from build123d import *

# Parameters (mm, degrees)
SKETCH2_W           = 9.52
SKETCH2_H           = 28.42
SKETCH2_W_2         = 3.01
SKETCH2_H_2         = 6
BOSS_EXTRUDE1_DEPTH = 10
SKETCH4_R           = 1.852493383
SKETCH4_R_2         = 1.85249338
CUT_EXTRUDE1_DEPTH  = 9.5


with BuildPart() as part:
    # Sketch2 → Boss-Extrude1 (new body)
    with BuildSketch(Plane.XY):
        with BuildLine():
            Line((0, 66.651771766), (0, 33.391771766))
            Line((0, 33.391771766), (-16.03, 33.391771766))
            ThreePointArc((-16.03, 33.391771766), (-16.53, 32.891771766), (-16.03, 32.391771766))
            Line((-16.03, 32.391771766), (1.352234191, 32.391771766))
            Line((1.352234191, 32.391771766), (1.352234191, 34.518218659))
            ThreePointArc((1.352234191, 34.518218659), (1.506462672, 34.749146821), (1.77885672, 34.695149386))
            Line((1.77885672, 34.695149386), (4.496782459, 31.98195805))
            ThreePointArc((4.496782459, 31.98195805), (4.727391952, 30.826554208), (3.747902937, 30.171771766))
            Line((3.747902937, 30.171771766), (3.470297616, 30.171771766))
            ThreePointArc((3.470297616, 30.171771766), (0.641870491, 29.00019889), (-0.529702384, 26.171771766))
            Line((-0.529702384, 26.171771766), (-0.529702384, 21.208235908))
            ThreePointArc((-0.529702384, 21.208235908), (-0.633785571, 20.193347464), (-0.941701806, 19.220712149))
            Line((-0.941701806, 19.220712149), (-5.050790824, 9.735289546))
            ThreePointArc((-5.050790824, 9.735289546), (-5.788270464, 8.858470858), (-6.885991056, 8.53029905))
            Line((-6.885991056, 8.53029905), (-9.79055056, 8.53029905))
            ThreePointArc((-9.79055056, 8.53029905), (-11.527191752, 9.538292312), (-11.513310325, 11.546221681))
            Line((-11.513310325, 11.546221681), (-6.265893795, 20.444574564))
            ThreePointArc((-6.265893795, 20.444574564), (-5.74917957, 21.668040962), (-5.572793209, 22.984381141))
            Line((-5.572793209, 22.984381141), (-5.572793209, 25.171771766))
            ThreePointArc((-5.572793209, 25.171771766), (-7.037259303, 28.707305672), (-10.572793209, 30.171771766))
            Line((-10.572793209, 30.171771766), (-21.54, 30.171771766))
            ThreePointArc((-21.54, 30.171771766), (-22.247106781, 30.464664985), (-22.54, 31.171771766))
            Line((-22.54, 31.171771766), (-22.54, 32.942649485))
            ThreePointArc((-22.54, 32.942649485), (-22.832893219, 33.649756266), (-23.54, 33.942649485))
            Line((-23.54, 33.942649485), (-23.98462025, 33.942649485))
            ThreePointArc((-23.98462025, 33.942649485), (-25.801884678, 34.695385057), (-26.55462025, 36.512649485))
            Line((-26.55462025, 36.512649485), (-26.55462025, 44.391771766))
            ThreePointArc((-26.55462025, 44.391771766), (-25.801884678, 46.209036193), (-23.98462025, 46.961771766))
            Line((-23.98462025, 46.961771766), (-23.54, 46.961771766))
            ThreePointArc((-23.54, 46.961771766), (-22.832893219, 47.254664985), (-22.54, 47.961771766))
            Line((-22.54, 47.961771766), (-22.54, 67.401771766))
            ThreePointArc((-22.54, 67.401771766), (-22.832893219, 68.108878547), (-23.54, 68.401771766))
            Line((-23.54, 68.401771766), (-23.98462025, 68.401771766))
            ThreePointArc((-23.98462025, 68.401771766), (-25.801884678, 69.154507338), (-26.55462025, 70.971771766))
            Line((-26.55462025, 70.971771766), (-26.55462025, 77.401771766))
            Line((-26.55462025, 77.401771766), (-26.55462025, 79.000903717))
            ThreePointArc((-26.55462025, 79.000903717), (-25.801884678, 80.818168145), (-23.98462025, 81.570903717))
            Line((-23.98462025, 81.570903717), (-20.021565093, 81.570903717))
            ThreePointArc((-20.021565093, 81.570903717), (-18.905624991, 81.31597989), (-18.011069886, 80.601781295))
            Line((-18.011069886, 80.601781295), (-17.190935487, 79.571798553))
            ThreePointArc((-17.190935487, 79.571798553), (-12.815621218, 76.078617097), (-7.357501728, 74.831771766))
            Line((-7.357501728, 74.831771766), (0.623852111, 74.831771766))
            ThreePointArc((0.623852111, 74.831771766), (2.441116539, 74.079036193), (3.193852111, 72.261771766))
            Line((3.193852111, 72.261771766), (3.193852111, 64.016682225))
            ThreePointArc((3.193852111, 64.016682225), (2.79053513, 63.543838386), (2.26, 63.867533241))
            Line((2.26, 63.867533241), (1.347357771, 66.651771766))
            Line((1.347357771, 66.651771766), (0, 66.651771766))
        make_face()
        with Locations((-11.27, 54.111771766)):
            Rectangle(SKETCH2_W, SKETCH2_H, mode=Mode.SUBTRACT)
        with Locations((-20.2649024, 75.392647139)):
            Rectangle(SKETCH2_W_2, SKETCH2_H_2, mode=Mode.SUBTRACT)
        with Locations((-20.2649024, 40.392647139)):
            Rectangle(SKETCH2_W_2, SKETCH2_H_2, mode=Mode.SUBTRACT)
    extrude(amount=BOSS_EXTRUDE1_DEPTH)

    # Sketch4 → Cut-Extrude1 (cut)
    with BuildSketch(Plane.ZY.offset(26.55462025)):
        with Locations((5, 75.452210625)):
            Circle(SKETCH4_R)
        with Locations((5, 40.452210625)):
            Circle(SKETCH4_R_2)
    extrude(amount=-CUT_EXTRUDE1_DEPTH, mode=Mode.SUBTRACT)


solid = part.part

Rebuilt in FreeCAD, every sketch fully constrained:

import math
import FreeCAD as App
import Part
import Sketcher
from FreeCAD import Vector
Q = App.Units.Quantity


def add_polygon(sketch, points):
    """Adds a closed chain of lines whose ends are joined by coincident constraints."""
    first, n = sketch.GeometryCount, len(points)
    for a, b in zip(points, points[1:] + points[:1]):
        sketch.addGeometry(Part.LineSegment(App.Vector(*a, 0), App.Vector(*b, 0)), False)
    for i in range(n):
        sketch.addConstraint(Sketcher.Constraint("Coincident", first + i, 2, first + (i + 1) % n, 1))

doc = App.newDocument("Part")
body = doc.addObject("PartDesign::Body", "Body")

# Sketch on XY plane
sketch1 = body.newObject("Sketcher::SketchObject", "Sketch")
sketch1.AttachmentSupport = (doc.getObject("XY_Plane"), [""])
sketch1.MapMode = "FlatFace"
sketch1.addGeometry(Part.LineSegment(Vector(0, 33.391772, 0), Vector(0, 66.651772, 0)), False)  # 0
sketch1.addGeometry(Part.LineSegment(Vector(0, 66.651772, 0), Vector(1.347358, 66.651772, 0)), False)  # 1
sketch1.addGeometry(Part.LineSegment(Vector(1.347358, 66.651772, 0), Vector(2.26, 63.867533, 0)), False)  # 2
sketch1.addGeometry(Part.ArcOfCircle(Part.Circle(Vector(2.715015, 64.016682, 0), Vector(0, 0, 1), 0.478837), math.radians(-161.851435), math.radians(0)), False)  # 3
sketch1.addGeometry(Part.LineSegment(Vector(3.193852, 64.016682, 0), Vector(3.193852, 72.261772, 0)), False)  # 4
sketch1.addGeometry(Part.ArcOfCircle(Part.Circle(Vector(0.623852, 72.261772, 0), Vector(0, 0, 1), 2.57), math.radians(0), math.radians(90)), False)  # 5
sketch1.addGeometry(Part.LineSegment(Vector(0.623852, 74.831772, 0), Vector(-7.357502, 74.831772, 0)), False)  # 6
sketch1.addGeometry(Part.ArcOfCircle(Part.Circle(Vector(-7.357502, 87.401772, 0), Vector(0, 0, 1), 12.57), math.radians(-141.471081), math.radians(-90)), False)  # 7
sketch1.addGeometry(Part.LineSegment(Vector(-17.190935, 79.571799, 0), Vector(-18.01107, 80.601781, 0)), False)  # 8
sketch1.addGeometry(Part.ArcOfCircle(Part.Circle(Vector(-20.021565, 79.000904, 0), Vector(0, 0, 1), 2.57), math.radians(38.528919), math.radians(90)), False)  # 9
sketch1.addGeometry(Part.LineSegment(Vector(-20.021565, 81.570904, 0), Vector(-23.98462, 81.570904, 0)), False)  # 10
sketch1.addGeometry(Part.ArcOfCircle(Part.Circle(Vector(-23.98462, 79.000904, 0), Vector(0, 0, 1), 2.57), math.radians(90), math.radians(180)), False)  # 11
sketch1.addGeometry(Part.LineSegment(Vector(-26.55462, 79.000904, 0), Vector(-26.55462, 70.971772, 0)), False)  # 12
sketch1.addGeometry(Part.ArcOfCircle(Part.Circle(Vector(-23.98462, 70.971772, 0), Vector(0, 0, 1), 2.57), math.radians(180), math.radians(270)), False)  # 13
sketch1.addGeometry(Part.LineSegment(Vector(-23.98462, 68.401772, 0), Vector(-23.54, 68.401772, 0)), False)  # 14
sketch1.addGeometry(Part.ArcOfCircle(Part.Circle(Vector(-23.54, 67.401772, 0), Vector(0, 0, 1), 1), math.radians(0), math.radians(90)), False)  # 15
sketch1.addGeometry(Part.LineSegment(Vector(-22.54, 67.401772, 0), Vector(-22.54, 47.961772, 0)), False)  # 16
sketch1.addGeometry(Part.ArcOfCircle(Part.Circle(Vector(-23.54, 47.961772, 0), Vector(0, 0, 1), 1), math.radians(-90), math.radians(0)), False)  # 17
sketch1.addGeometry(Part.LineSegment(Vector(-23.54, 46.961772, 0), Vector(-23.98462, 46.961772, 0)), False)  # 18
sketch1.addGeometry(Part.ArcOfCircle(Part.Circle(Vector(-23.98462, 44.391772, 0), Vector(0, 0, 1), 2.57), math.radians(90), math.radians(180)), False)  # 19
sketch1.addGeometry(Part.LineSegment(Vector(-26.55462, 44.391772, 0), Vector(-26.55462, 36.512649, 0)), False)  # 20
sketch1.addGeometry(Part.ArcOfCircle(Part.Circle(Vector(-23.98462, 36.512649, 0), Vector(0, 0, 1), 2.57), math.radians(180), math.radians(270)), False)  # 21
sketch1.addGeometry(Part.LineSegment(Vector(-23.98462, 33.942649, 0), Vector(-23.54, 33.942649, 0)), False)  # 22
sketch1.addGeometry(Part.ArcOfCircle(Part.Circle(Vector(-23.54, 32.942649, 0), Vector(0, 0, 1), 1), math.radians(0), math.radians(90)), False)  # 23
sketch1.addGeometry(Part.LineSegment(Vector(-22.54, 32.942649, 0), Vector(-22.54, 31.171772, 0)), False)  # 24
sketch1.addGeometry(Part.ArcOfCircle(Part.Circle(Vector(-21.54, 31.171772, 0), Vector(0, 0, 1), 1), math.radians(-180), math.radians(-90)), False)  # 25
sketch1.addGeometry(Part.LineSegment(Vector(-21.54, 30.171772, 0), Vector(-10.572793, 30.171772, 0)), False)  # 26
sketch1.addGeometry(Part.ArcOfCircle(Part.Circle(Vector(-10.572793, 25.171772, 0), Vector(0, 0, 1), 5), math.radians(0), math.radians(90)), False)  # 27
sketch1.addGeometry(Part.LineSegment(Vector(-5.572793, 25.171772, 0), Vector(-5.572793, 22.984381, 0)), False)  # 28
sketch1.addGeometry(Part.ArcOfCircle(Part.Circle(Vector(-10.572793, 22.984381, 0), Vector(0, 0, 1), 5), math.radians(-30.528129), math.radians(0)), False)  # 29
sketch1.addGeometry(Part.LineSegment(Vector(-6.265894, 20.444575, 0), Vector(-11.51331, 11.546222, 0)), False)  # 30
sketch1.addGeometry(Part.ArcOfCircle(Part.Circle(Vector(-9.790551, 10.530299, 0), Vector(0, 0, 1), 2), math.radians(149.471871), math.radians(270)), False)  # 31
sketch1.addGeometry(Part.LineSegment(Vector(-9.790551, 8.530299, 0), Vector(-6.885991, 8.530299, 0)), False)  # 32
sketch1.addGeometry(Part.ArcOfCircle(Part.Circle(Vector(-6.885991, 10.530299, 0), Vector(0, 0, 1), 2), math.radians(-90), math.radians(-23.422281)), False)  # 33
sketch1.addGeometry(Part.LineSegment(Vector(-5.050791, 9.73529, 0), Vector(-0.941702, 19.220712, 0)), False)  # 34
sketch1.addGeometry(Part.ArcOfCircle(Part.Circle(Vector(-5.529702, 21.208236, 0), Vector(0, 0, 1), 5), math.radians(-23.422281), math.radians(0)), False)  # 35
sketch1.addGeometry(Part.LineSegment(Vector(-0.529702, 21.208236, 0), Vector(-0.529702, 26.171772, 0)), False)  # 36
sketch1.addGeometry(Part.ArcOfCircle(Part.Circle(Vector(3.470298, 26.171772, 0), Vector(0, 0, 1), 4), math.radians(90), math.radians(180)), False)  # 37
sketch1.addGeometry(Part.LineSegment(Vector(3.470298, 30.171772, 0), Vector(3.747903, 30.171772, 0)), False)  # 38
sketch1.addGeometry(Part.ArcOfCircle(Part.Circle(Vector(3.747903, 31.231772, 0), Vector(0, 0, 1), 1.06), math.radians(-90), math.radians(45.049946)), False)  # 39
sketch1.addGeometry(Part.LineSegment(Vector(4.496782, 31.981958, 0), Vector(1.778857, 34.695149, 0)), False)  # 40
sketch1.addGeometry(Part.ArcOfCircle(Part.Circle(Vector(1.602234, 34.518219, 0), Vector(0, 0, 1), 0.25), math.radians(45.049946), math.radians(180)), False)  # 41
sketch1.addGeometry(Part.LineSegment(Vector(1.352234, 34.518219, 0), Vector(1.352234, 32.391772, 0)), False)  # 42
sketch1.addGeometry(Part.LineSegment(Vector(1.352234, 32.391772, 0), Vector(-16.03, 32.391772, 0)), False)  # 43
sketch1.addGeometry(Part.ArcOfCircle(Part.Circle(Vector(-16.03, 32.891772, 0), Vector(0, 0, 1), 0.5), math.radians(90), math.radians(270)), False)  # 44
sketch1.addGeometry(Part.LineSegment(Vector(-16.03, 33.391772, 0), Vector(0, 33.391772, 0)), False)  # 45
add_polygon(sketch1, [(-16.03, 39.901772), (-16.03, 68.321772), (-6.51, 68.321772), (-6.51, 39.901772)])  # lines 46-49
add_polygon(sketch1, [(-21.769902, 37.392647), (-21.769902, 43.392647), (-18.759902, 43.392647), (-18.759902, 37.392647)])  # lines 50-53
add_polygon(sketch1, [(-21.769902, 72.392647), (-21.769902, 78.392647), (-18.759902, 78.392647), (-18.759902, 72.392647)])  # lines 54-57
sketch1.addConstraint([
    Sketcher.Constraint("Coincident", 0, 2, 1, 1),
    Sketcher.Constraint("Coincident", 1, 2, 2, 1),
    Sketcher.Constraint("Tangent", 2, 2, 3, 1),
    Sketcher.Constraint("Tangent", 3, 2, 4, 1),
    Sketcher.Constraint("Tangent", 4, 2, 5, 1),
    Sketcher.Constraint("Tangent", 5, 2, 6, 1),
    Sketcher.Constraint("Tangent", 6, 2, 7, 2),
    Sketcher.Constraint("Tangent", 7, 1, 8, 1),
    Sketcher.Constraint("Tangent", 8, 2, 9, 1),
    Sketcher.Constraint("Tangent", 9, 2, 10, 1),
    Sketcher.Constraint("Tangent", 10, 2, 11, 1),
    Sketcher.Constraint("Tangent", 11, 2, 12, 1),
    Sketcher.Constraint("Tangent", 12, 2, 13, 1),
    Sketcher.Constraint("Tangent", 13, 2, 14, 1),
    Sketcher.Constraint("Tangent", 14, 2, 15, 2),
    Sketcher.Constraint("Tangent", 15, 1, 16, 1),
    Sketcher.Constraint("Tangent", 16, 2, 17, 2),
    Sketcher.Constraint("Tangent", 17, 1, 18, 1),
    Sketcher.Constraint("Tangent", 18, 2, 19, 1),
    Sketcher.Constraint("Tangent", 19, 2, 20, 1),
    Sketcher.Constraint("Tangent", 20, 2, 21, 1),
    Sketcher.Constraint("Tangent", 21, 2, 22, 1),
    Sketcher.Constraint("Tangent", 22, 2, 23, 2),
    Sketcher.Constraint("Tangent", 23, 1, 24, 1),
    Sketcher.Constraint("Tangent", 24, 2, 25, 1),
    Sketcher.Constraint("Tangent", 25, 2, 26, 1),
    Sketcher.Constraint("Tangent", 26, 2, 27, 2),
    Sketcher.Constraint("Tangent", 27, 1, 28, 1),
    Sketcher.Constraint("Tangent", 28, 2, 29, 2),
    Sketcher.Constraint("Tangent", 29, 1, 30, 1),
    Sketcher.Constraint("Tangent", 30, 2, 31, 1),
    Sketcher.Constraint("Tangent", 31, 2, 32, 1),
    Sketcher.Constraint("Tangent", 32, 2, 33, 1),
    Sketcher.Constraint("Tangent", 33, 2, 34, 1),
    Sketcher.Constraint("Tangent", 34, 2, 35, 1),
    Sketcher.Constraint("Tangent", 35, 2, 36, 1),
    Sketcher.Constraint("Tangent", 36, 2, 37, 2),
    Sketcher.Constraint("Tangent", 37, 1, 38, 1),
    Sketcher.Constraint("Tangent", 38, 2, 39, 1),
    Sketcher.Constraint("Tangent", 39, 2, 40, 1),
    Sketcher.Constraint("Tangent", 40, 2, 41, 1),
    Sketcher.Constraint("Tangent", 41, 2, 42, 1),
    Sketcher.Constraint("Coincident", 42, 2, 43, 1),
    Sketcher.Constraint("Tangent", 43, 2, 44, 2),
    Sketcher.Constraint("Tangent", 44, 1, 45, 1),
    Sketcher.Constraint("Coincident", 45, 2, 0, 1),
    Sketcher.Constraint("Vertical", 0),
    Sketcher.Constraint("Horizontal", 1),
    Sketcher.Constraint("Vertical", 4),
    Sketcher.Constraint("Horizontal", 6),
    Sketcher.Constraint("Horizontal", 10),
    Sketcher.Constraint("Vertical", 12),
    Sketcher.Constraint("Horizontal", 14),
    Sketcher.Constraint("Vertical", 16),
    Sketcher.Constraint("Horizontal", 18),
    Sketcher.Constraint("Vertical", 20),
    Sketcher.Constraint("Horizontal", 22),
    Sketcher.Constraint("Vertical", 24),
    Sketcher.Constraint("Horizontal", 26),
    Sketcher.Constraint("Vertical", 28),
    Sketcher.Constraint("Horizontal", 32),
    Sketcher.Constraint("Vertical", 36),
    Sketcher.Constraint("Horizontal", 38),
    Sketcher.Constraint("Vertical", 42),
    Sketcher.Constraint("Horizontal", 43),
    Sketcher.Constraint("Horizontal", 45),
    Sketcher.Constraint("Vertical", 46),
    Sketcher.Constraint("Horizontal", 47),
    Sketcher.Constraint("Vertical", 48),
    Sketcher.Constraint("Horizontal", 49),
    Sketcher.Constraint("Vertical", 50),
    Sketcher.Constraint("Horizontal", 51),
    Sketcher.Constraint("Vertical", 52),
    Sketcher.Constraint("Horizontal", 53),
    Sketcher.Constraint("Vertical", 54),
    Sketcher.Constraint("Horizontal", 55),
    Sketcher.Constraint("Vertical", 56),
    Sketcher.Constraint("Horizontal", 57),
    Sketcher.Constraint("Equal", 5, 9),
    Sketcher.Constraint("Equal", 9, 11),
    Sketcher.Constraint("Equal", 11, 13),
    Sketcher.Constraint("Equal", 15, 17),
    Sketcher.Constraint("Equal", 13, 19),
    Sketcher.Constraint("Equal", 19, 21),
    Sketcher.Constraint("Equal", 17, 23),
    Sketcher.Constraint("Equal", 23, 25),
    Sketcher.Constraint("Equal", 27, 29),
    Sketcher.Constraint("Equal", 31, 33),
    Sketcher.Constraint("Equal", 29, 35),
    Sketcher.Constraint("PointOnObject", 0, 2, -2),
    Sketcher.Constraint("Horizontal", 26, 2, 37, 1),
    Sketcher.Constraint("Vertical", 13, 3, 19, 3),
    Sketcher.Constraint("Vertical", 17, 3, 23, 3),
    Sketcher.Constraint("Vertical", 44, 1, 46, 2),
    Sketcher.Constraint("Vertical", 53, 2, 54, 2),
    Sketcher.Constraint("Vertical", 52, 2, 55, 2),
    Sketcher.Constraint("Equal", 52, 54),
    Sketcher.Constraint("Radius", 15, Q("1 mm")),
    Sketcher.Constraint("Radius", 27, Q("5 mm")),
    Sketcher.Constraint("Radius", 31, Q("2 mm")),
    Sketcher.Constraint("Radius", 37, Q("4 mm")),
    Sketcher.Constraint("Radius", 44, Q("0.5 mm")),
    Sketcher.Constraint("DistanceY", 50, 1, 50, 2, Q("6 mm")),
    Sketcher.Constraint("Radius", 5, Q("2.57 mm")),
    Sketcher.Constraint("Radius", 7, Q("12.57 mm")),
    Sketcher.Constraint("Radius", 39, Q("1.06 mm")),
    Sketcher.Constraint("Radius", 41, Q("0.25 mm")),
    Sketcher.Constraint("DistanceX", 45, 1, 45, 2, Q("16.03 mm")),
    Sketcher.Constraint("DistanceX", 47, 1, 47, 2, Q("9.52 mm")),
    Sketcher.Constraint("DistanceX", 51, 1, 51, 2, Q("3.01 mm")),
    Sketcher.Constraint("DistanceY", 0, 1, 0, 2, Q("33.26 mm")),
    Sketcher.Constraint("DistanceY", 16, 2, 16, 1, Q("19.44 mm")),
    Sketcher.Constraint("DistanceY", 46, 1, 46, 2, Q("28.42 mm")),
    Sketcher.Constraint("Distance", 2, Q("2.93 mm")),
    Sketcher.Constraint("DistanceX", 15, 3, -1, 1, Q("23.54 mm")),
    Sketcher.Constraint("DistanceX", -1, 1, 2, 2, Q("2.26 mm")),
    Sketcher.Constraint("Radius", 3, Q("0.478837 mm")),
    Sketcher.Constraint("DistanceX", 14, 1, 14, 2, Q("0.44462 mm")),
    Sketcher.Constraint("DistanceX", 32, 1, 32, 2, Q("2.90456 mm")),
    Sketcher.Constraint("DistanceY", 4, 1, 4, 2, Q("8.24509 mm")),
    Sketcher.Constraint("DistanceY", 12, 2, 12, 1, Q("8.029132 mm")),
    Sketcher.Constraint("DistanceY", 28, 2, 28, 1, Q("2.187391 mm")),
    Sketcher.Constraint("DistanceX", 7, 3, -1, 1, Q("7.357502 mm")),
    Sketcher.Constraint("DistanceY", -1, 1, 31, 3, Q("10.530299 mm")),
    Sketcher.Constraint("DistanceY", -1, 1, 7, 1, Q("79.571799 mm")),
    Sketcher.Constraint("DistanceX", 34, 2, -1, 1, Q("0.941702 mm")),
    Sketcher.Constraint("Distance", 8, Q("1.316619 mm")),
    Sketcher.Constraint("Distance", 40, Q("3.840381 mm")),
    Sketcher.Constraint("DistanceX", 1, 1, 1, 2, Q("1.347358 mm")),
    Sketcher.Constraint("DistanceX", 10, 2, 10, 1, Q("3.963055 mm")),
    Sketcher.Constraint("DistanceX", 26, 1, 26, 2, Q("10.967207 mm")),
    Sketcher.Constraint("DistanceX", 38, 1, 38, 2, Q("0.277605 mm")),
    Sketcher.Constraint("DistanceX", 43, 2, 43, 1, Q("17.382234 mm")),
    Sketcher.Constraint("DistanceY", 20, 2, 20, 1, Q("7.879122 mm")),
    Sketcher.Constraint("DistanceY", 24, 2, 24, 1, Q("1.770878 mm")),
    Sketcher.Constraint("DistanceY", 36, 1, 36, 2, Q("4.963536 mm")),
    Sketcher.Constraint("DistanceY", 42, 2, 42, 1, Q("2.126447 mm")),
    Sketcher.Constraint("DistanceY", -1, 1, 46, 2, Q("68.321772 mm")),
    Sketcher.Constraint("DistanceX", 50, 2, -1, 1, Q("21.769902 mm")),
    Sketcher.Constraint("DistanceY", -1, 1, 50, 2, Q("43.392647 mm")),
    Sketcher.Constraint("DistanceY", -1, 1, 54, 2, Q("78.392647 mm")),
])
pad1 = body.newObject("PartDesign::Pad", "Pad")
pad1.Profile = sketch1
pad1.Length = 10

# Sketch on YZ plane
sketch2 = body.newObject("Sketcher::SketchObject", "Sketch001")
sketch2.AttachmentSupport = (doc.getObject("YZ_Plane"), [""])
sketch2.MapMode = "FlatFace"
sketch2.AttachmentOffset = App.Placement(Vector(0, 0, -26.55462), App.Rotation())
sketch2.addGeometry([
    Part.Circle(Vector(75.452211, 5, 0), Vector(0, 0, 1), 1.852493),
    Part.Circle(Vector(40.452211, 5, 0), Vector(0, 0, 1), 1.852493),
], False)
sketch2.addConstraint([
    Sketcher.Constraint("Equal", 0, 1),
    Sketcher.Constraint("Horizontal", 0, 3, 1, 3),
    Sketcher.Constraint("DistanceY", -1, 1, 0, 3, Q("5 mm")),
    Sketcher.Constraint("DistanceX", 1, 3, 0, 3, Q("35 mm")),
    Sketcher.Constraint("Diameter", 0, Q("3.704987 mm")),
    Sketcher.Constraint("DistanceX", -1, 1, 0, 3, Q("75.452211 mm")),
])
pocket1 = body.newObject("PartDesign::Pocket", "Pocket")
pocket1.Profile = sketch2
pocket1.Length = 9.5
pocket1.Reversed = True

doc.recompute()
